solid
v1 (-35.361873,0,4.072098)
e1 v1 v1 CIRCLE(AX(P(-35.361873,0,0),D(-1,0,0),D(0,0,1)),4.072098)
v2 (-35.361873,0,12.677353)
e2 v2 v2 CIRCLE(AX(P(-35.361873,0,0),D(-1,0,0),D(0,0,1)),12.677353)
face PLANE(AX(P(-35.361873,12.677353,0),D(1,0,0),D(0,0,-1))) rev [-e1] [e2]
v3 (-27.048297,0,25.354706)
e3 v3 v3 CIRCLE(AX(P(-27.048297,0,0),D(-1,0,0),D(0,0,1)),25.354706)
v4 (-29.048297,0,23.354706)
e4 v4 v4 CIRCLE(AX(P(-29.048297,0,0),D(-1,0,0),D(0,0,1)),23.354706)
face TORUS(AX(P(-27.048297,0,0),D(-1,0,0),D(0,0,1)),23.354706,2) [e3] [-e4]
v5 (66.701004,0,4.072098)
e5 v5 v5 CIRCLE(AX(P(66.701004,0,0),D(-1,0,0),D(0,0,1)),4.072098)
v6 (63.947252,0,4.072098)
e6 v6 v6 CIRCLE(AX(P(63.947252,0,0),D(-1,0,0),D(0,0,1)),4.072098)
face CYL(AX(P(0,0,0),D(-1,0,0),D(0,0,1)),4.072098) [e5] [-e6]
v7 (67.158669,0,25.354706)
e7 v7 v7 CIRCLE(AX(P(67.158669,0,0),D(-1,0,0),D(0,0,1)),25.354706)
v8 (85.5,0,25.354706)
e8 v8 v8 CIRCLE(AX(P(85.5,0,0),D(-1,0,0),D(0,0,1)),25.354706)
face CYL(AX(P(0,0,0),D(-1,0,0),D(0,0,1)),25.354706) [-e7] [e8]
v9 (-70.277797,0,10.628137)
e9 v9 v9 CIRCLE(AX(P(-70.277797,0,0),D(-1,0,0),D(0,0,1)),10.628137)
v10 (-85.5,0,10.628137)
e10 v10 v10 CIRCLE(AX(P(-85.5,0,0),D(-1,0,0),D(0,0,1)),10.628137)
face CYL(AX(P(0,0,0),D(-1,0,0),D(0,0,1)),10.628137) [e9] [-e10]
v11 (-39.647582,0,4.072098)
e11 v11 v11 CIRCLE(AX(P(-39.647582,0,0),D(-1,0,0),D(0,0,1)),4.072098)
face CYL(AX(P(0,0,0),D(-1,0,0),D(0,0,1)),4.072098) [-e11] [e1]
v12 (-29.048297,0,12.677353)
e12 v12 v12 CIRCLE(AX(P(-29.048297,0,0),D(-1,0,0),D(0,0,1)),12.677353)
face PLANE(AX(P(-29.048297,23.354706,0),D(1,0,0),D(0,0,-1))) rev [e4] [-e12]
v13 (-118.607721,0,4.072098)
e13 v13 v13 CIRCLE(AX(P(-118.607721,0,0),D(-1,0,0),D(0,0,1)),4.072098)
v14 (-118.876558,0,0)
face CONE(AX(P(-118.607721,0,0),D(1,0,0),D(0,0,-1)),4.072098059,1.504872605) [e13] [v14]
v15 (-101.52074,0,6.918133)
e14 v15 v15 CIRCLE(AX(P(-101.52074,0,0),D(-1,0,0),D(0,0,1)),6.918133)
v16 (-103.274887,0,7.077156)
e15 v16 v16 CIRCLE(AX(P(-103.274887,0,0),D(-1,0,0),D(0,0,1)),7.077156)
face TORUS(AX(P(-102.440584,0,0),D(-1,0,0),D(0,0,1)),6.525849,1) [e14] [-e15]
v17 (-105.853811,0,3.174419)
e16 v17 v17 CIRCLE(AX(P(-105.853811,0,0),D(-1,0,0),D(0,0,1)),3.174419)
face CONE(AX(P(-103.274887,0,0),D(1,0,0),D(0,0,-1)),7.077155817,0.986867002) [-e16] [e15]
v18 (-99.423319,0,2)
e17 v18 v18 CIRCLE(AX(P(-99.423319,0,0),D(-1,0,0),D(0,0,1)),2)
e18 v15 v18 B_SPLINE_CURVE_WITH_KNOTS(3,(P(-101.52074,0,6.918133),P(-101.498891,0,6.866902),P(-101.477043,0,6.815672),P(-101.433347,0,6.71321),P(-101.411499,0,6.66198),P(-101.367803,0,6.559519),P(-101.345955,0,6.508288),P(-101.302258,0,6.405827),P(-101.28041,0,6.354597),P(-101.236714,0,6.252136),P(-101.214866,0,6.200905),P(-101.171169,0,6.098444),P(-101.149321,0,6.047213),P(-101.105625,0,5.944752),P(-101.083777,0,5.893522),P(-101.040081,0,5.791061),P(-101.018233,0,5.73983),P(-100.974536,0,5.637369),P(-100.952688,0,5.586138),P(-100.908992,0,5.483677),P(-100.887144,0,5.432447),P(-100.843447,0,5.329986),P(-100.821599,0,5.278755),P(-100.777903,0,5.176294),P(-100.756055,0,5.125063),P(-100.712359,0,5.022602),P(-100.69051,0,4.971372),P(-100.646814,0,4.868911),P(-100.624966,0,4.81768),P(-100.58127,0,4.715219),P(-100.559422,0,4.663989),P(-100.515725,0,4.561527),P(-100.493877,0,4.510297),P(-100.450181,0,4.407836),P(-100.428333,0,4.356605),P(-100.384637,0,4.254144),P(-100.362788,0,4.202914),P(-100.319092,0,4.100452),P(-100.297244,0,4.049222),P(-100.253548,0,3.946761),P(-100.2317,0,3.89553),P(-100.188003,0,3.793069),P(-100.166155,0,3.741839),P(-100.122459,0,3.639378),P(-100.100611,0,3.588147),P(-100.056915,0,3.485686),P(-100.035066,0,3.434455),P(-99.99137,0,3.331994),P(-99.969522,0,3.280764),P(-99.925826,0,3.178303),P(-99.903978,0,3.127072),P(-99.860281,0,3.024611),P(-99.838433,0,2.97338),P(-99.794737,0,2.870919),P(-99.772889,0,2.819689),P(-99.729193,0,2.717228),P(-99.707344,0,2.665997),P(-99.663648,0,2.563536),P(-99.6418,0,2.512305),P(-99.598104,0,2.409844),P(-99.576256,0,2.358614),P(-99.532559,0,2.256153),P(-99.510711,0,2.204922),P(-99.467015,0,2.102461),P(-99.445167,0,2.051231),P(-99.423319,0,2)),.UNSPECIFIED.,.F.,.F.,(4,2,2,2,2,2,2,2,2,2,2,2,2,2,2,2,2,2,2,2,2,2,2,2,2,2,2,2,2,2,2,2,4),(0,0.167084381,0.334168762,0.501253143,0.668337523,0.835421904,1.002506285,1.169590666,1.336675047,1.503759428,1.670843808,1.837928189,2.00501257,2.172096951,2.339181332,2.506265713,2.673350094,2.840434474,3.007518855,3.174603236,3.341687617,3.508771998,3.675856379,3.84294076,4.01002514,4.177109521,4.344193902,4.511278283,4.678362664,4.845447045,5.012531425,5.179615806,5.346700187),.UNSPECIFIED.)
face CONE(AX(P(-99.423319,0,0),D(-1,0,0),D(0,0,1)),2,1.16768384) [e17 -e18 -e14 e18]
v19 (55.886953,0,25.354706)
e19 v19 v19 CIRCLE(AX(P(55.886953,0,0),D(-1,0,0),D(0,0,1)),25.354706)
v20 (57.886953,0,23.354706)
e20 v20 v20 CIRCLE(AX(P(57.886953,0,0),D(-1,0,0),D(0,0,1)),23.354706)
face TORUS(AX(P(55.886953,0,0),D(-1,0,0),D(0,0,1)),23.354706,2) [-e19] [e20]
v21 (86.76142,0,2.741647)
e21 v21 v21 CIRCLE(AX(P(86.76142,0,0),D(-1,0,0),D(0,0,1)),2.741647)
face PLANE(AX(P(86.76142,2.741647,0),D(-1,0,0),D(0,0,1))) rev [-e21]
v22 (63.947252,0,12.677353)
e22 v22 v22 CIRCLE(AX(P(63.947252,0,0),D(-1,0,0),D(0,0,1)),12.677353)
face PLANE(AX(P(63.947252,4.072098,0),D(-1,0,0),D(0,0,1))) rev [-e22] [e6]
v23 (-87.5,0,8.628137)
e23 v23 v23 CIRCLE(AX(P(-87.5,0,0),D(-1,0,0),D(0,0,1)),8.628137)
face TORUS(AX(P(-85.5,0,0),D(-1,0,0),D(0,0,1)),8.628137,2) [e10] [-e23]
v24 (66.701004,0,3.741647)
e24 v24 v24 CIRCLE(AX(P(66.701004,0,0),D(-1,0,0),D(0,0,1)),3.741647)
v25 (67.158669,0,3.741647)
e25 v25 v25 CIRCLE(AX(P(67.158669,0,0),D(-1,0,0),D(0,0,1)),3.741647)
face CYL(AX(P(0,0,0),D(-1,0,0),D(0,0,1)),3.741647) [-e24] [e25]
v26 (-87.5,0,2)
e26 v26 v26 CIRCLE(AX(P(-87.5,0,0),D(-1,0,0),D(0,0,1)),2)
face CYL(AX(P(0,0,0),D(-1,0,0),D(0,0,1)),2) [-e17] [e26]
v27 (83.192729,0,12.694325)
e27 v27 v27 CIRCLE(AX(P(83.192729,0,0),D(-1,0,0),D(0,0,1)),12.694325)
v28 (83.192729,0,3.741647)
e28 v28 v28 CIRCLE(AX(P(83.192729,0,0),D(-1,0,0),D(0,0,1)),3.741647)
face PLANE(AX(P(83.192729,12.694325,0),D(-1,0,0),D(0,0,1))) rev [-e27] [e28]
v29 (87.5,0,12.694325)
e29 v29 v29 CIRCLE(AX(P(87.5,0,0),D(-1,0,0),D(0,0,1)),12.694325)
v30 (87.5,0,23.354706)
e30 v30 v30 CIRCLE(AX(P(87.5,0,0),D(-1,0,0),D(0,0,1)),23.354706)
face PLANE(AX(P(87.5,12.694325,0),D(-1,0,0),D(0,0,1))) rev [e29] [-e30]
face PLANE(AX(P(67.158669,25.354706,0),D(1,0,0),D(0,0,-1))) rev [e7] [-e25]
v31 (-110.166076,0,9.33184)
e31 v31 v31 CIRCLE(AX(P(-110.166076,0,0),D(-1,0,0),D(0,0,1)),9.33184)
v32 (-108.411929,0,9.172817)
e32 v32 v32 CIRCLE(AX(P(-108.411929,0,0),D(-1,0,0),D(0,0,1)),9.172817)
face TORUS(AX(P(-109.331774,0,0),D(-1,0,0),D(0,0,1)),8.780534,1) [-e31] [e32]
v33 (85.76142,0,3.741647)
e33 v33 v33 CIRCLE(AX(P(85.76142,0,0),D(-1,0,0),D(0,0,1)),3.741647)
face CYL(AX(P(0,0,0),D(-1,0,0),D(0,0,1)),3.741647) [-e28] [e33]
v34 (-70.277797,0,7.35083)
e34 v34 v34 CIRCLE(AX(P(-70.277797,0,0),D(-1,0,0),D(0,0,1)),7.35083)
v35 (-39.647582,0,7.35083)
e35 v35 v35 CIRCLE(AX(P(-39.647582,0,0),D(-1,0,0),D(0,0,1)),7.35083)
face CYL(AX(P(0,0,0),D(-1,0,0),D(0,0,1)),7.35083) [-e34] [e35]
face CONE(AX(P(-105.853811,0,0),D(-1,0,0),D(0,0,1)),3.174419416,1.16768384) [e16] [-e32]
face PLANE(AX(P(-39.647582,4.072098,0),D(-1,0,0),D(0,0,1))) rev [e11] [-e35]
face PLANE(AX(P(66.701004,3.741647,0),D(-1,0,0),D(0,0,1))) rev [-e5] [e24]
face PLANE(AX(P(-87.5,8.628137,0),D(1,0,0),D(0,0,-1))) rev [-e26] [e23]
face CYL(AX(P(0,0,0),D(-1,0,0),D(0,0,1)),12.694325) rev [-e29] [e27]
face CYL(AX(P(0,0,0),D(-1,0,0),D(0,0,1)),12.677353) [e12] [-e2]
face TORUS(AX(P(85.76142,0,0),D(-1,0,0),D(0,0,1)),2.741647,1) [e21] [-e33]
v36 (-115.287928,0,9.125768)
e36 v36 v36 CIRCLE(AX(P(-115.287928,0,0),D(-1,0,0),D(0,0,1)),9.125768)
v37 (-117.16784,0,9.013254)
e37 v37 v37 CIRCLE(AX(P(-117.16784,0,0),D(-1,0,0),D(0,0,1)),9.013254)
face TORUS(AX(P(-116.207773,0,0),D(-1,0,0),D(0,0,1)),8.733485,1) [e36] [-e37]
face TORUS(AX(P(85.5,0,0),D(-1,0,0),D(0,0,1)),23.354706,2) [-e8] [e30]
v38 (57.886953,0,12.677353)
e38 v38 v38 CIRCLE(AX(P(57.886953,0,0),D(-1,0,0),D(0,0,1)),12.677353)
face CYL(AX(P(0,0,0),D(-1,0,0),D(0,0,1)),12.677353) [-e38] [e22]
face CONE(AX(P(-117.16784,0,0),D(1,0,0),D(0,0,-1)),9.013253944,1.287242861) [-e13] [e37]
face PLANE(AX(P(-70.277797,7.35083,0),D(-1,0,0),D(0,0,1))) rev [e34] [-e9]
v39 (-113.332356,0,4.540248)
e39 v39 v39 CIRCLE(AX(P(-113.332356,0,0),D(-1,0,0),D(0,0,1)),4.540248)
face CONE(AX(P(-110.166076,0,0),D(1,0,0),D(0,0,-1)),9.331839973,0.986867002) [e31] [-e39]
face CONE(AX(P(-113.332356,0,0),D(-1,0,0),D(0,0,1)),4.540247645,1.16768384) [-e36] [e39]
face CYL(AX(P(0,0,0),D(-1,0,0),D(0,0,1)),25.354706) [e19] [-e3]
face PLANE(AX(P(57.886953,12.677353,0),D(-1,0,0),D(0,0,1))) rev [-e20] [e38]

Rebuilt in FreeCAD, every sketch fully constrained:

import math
import FreeCAD as App
import Part
import Sketcher
Q = App.Units.Quantity

doc = App.newDocument("Part")
body = doc.addObject("PartDesign::Body", "Body")

# Sketch on XY plane
sketch1 = doc.addObject("Sketcher::SketchObject", "Sketch")
body.addObject(sketch1)
sketch1.AttachmentSupport = (doc.XY_Plane, [""])
sketch1.MapMode = "FlatFace"
sketch1.addGeometry([
    Part.LineSegment(App.Vector(86.76, 0, 0), App.Vector(86.76, 2.74, 0)),  # 0
    Part.ArcOfCircle(Part.Circle(App.Vector(85.76, 2.74, 0), App.Vector(0, 0, 1), 1), math.radians(0), math.radians(90)),  # 1
    Part.LineSegment(App.Vector(85.76, 3.74, 0), App.Vector(83.19, 3.74, 0)),  # 2
    Part.LineSegment(App.Vector(83.19, 3.74, 0), App.Vector(83.19, 12.69, 0)),  # 3
    Part.LineSegment(App.Vector(83.19, 12.69, 0), App.Vector(87.5, 12.69, 0)),  # 4
    Part.LineSegment(App.Vector(87.5, 12.69, 0), App.Vector(87.5, 23.35, 0)),  # 5
    Part.ArcOfCircle(Part.Circle(App.Vector(85.5, 23.35, 0), App.Vector(0, 0, 1), 2), math.radians(0), math.radians(90)),  # 6
    Part.LineSegment(App.Vector(85.5, 25.35, 0), App.Vector(67.16, 25.35, 0)),  # 7
    Part.LineSegment(App.Vector(67.16, 25.35, 0), App.Vector(67.16, 3.74, 0)),  # 8
    Part.LineSegment(App.Vector(67.16, 3.74, 0), App.Vector(66.7, 3.74, 0)),  # 9
    Part.LineSegment(App.Vector(66.7, 3.74, 0), App.Vector(66.7, 4.07, 0)),  # 10
    Part.LineSegment(App.Vector(66.7, 4.07, 0), App.Vector(63.95, 4.07, 0)),  # 11
    Part.LineSegment(App.Vector(63.95, 4.07, 0), App.Vector(63.95, 12.68, 0)),  # 12
    Part.LineSegment(App.Vector(63.95, 12.68, 0), App.Vector(57.89, 12.68, 0)),  # 13
    Part.LineSegment(App.Vector(57.89, 12.68, 0), App.Vector(57.89, 23.35, 0)),  # 14
    Part.ArcOfCircle(Part.Circle(App.Vector(55.89, 23.35, 0), App.Vector(0, 0, 1), 2), math.radians(0), math.radians(90)),  # 15
    Part.LineSegment(App.Vector(55.89, 25.35, 0), App.Vector(-27.05, 25.35, 0)),  # 16
    Part.ArcOfCircle(Part.Circle(App.Vector(-27.05, 23.35, 0), App.Vector(0, 0, 1), 2), math.radians(90), math.radians(180)),  # 17
    Part.LineSegment(App.Vector(-29.05, 23.35, 0), App.Vector(-29.05, 12.68, 0)),  # 18
    Part.LineSegment(App.Vector(-29.05, 12.68, 0), App.Vector(-35.36, 12.68, 0)),  # 19
    Part.LineSegment(App.Vector(-35.36, 12.68, 0), App.Vector(-35.36, 4.07, 0)),  # 20
    Part.LineSegment(App.Vector(-35.36, 4.07, 0), App.Vector(-39.65, 4.07, 0)),  # 21
    Part.LineSegment(App.Vector(-39.65, 4.07, 0), App.Vector(-39.65, 7.35, 0)),  # 22
    Part.LineSegment(App.Vector(-39.65, 7.35, 0), App.Vector(-70.28, 7.35, 0)),  # 23
    Part.LineSegment(App.Vector(-70.28, 7.35, 0), App.Vector(-70.28, 10.63, 0)),  # 24
    Part.LineSegment(App.Vector(-70.28, 10.63, 0), App.Vector(-85.5, 10.63, 0)),  # 25
    Part.ArcOfCircle(Part.Circle(App.Vector(-85.5, 8.63, 0), App.Vector(0, 0, 1), 2), math.radians(90), math.radians(180)),  # 26
    Part.LineSegment(App.Vector(-87.5, 8.63, 0), App.Vector(-87.5, 2, 0)),  # 27
    Part.LineSegment(App.Vector(-87.5, 2, 0), App.Vector(-99.42, 2, 0)),  # 28
    Part.LineSegment(App.Vector(-99.42, 2, 0), App.Vector(-101.52, 6.92, 0)),  # 29
    Part.ArcOfCircle(Part.Circle(App.Vector(-102.44, 6.53, 0), App.Vector(0, 0, 1), 1), math.radians(23), math.radians(147)),  # 30
    Part.LineSegment(App.Vector(-103.27, 7.08, 0), App.Vector(-105.85, 3.17, 0)),  # 31
    Part.LineSegment(App.Vector(-105.85, 3.17, 0), App.Vector(-108.41, 9.17, 0)),  # 32
    Part.ArcOfCircle(Part.Circle(App.Vector(-109.33, 8.78, 0), App.Vector(0, 0, 1), 1), math.radians(23), math.radians(147)),  # 33
    Part.LineSegment(App.Vector(-110.17, 9.33, 0), App.Vector(-113.33, 4.54, 0)),  # 34
    Part.LineSegment(App.Vector(-113.33, 4.54, 0), App.Vector(-115.29, 9.13, 0)),  # 35
    Part.ArcOfCircle(Part.Circle(App.Vector(-116.21, 8.73, 0), App.Vector(0, 0, 1), 1), math.radians(23), math.radians(164)),  # 36
    Part.LineSegment(App.Vector(-117.17, 9.01, 0), App.Vector(-118.61, 4.07, 0)),  # 37
    Part.LineSegment(App.Vector(-118.61, 4.07, 0), App.Vector(-118.88, 0, 0)),  # 38
    Part.LineSegment(App.Vector(-118.88, 0, 0), App.Vector(86.76, 0, 0)),  # 39
], False)
sketch1.addConstraint([
    Sketcher.Constraint("Tangent", 0, 2, 1, 1),
    Sketcher.Constraint("Tangent", 1, 2, 2, 1),
    Sketcher.Constraint("Coincident", 2, 2, 3, 1),
    Sketcher.Constraint("Coincident", 3, 2, 4, 1),
    Sketcher.Constraint("Coincident", 4, 2, 5, 1),
    Sketcher.Constraint("Tangent", 5, 2, 6, 1),
    Sketcher.Constraint("Tangent", 6, 2, 7, 1),
    Sketcher.Constraint("Coincident", 7, 2, 8, 1),
    Sketcher.Constraint("Coincident", 8, 2, 9, 1),
    Sketcher.Constraint("Coincident", 9, 2, 10, 1),
    Sketcher.Constraint("Coincident", 10, 2, 11, 1),
    Sketcher.Constraint("Coincident", 11, 2, 12, 1),
    Sketcher.Constraint("Coincident", 12, 2, 13, 1),
    Sketcher.Constraint("Coincident", 13, 2, 14, 1),
    Sketcher.Constraint("Tangent", 14, 2, 15, 1),
    Sketcher.Constraint("Tangent", 15, 2, 16, 1),
    Sketcher.Constraint("Tangent", 16, 2, 17, 1),
    Sketcher.Constraint("Tangent", 17, 2, 18, 1),
    Sketcher.Constraint("Coincident", 18, 2, 19, 1),
    Sketcher.Constraint("Coincident", 19, 2, 20, 1),
    Sketcher.Constraint("Coincident", 20, 2, 21, 1),
    Sketcher.Constraint("Coincident", 21, 2, 22, 1),
    Sketcher.Constraint("Coincident", 22, 2, 23, 1),
    Sketcher.Constraint("Coincident", 23, 2, 24, 1),
    Sketcher.Constraint("Coincident", 24, 2, 25, 1),
    Sketcher.Constraint("Tangent", 25, 2, 26, 1),
    Sketcher.Constraint("Tangent", 26, 2, 27, 1),
    Sketcher.Constraint("Coincident", 27, 2, 28, 1),
    Sketcher.Constraint("Coincident", 28, 2, 29, 1),
    Sketcher.Constraint("Tangent", 29, 2, 30, 1),
    Sketcher.Constraint("Tangent", 30, 2, 31, 1),
    Sketcher.Constraint("Coincident", 31, 2, 32, 1),
    Sketcher.Constraint("Tangent", 32, 2, 33, 1),
    Sketcher.Constraint("Tangent", 33, 2, 34, 1),
    Sketcher.Constraint("Coincident", 34, 2, 35, 1),
    Sketcher.Constraint("Tangent", 35, 2, 36, 1),
    Sketcher.Constraint("Tangent", 36, 2, 37, 1),
    Sketcher.Constraint("Coincident", 37, 2, 38, 1),
    Sketcher.Constraint("Coincident", 38, 2, 39, 1),
    Sketcher.Constraint("Coincident", 39, 2, 0, 1),
    Sketcher.Constraint("Vertical", 0),
    Sketcher.Constraint("Horizontal", 2),
    Sketcher.Constraint("Vertical", 3),
    Sketcher.Constraint("Horizontal", 4),
    Sketcher.Constraint("Vertical", 5),
    Sketcher.Constraint("Horizontal", 7),
    Sketcher.Constraint("Vertical", 8),
    Sketcher.Constraint("Horizontal", 9),
    Sketcher.Constraint("Vertical", 10),
    Sketcher.Constraint("Horizontal", 11),
    Sketcher.Constraint("Vertical", 12),
    Sketcher.Constraint("Horizontal", 13),
    Sketcher.Constraint("Vertical", 14),
    Sketcher.Constraint("Horizontal", 16),
    Sketcher.Constraint("Vertical", 18),
    Sketcher.Constraint("Horizontal", 19),
    Sketcher.Constraint("Vertical", 20),
    Sketcher.Constraint("Horizontal", 21),
    Sketcher.Constraint("Vertical", 22),
    Sketcher.Constraint("Horizontal", 23),
    Sketcher.Constraint("Vertical", 24),
    Sketcher.Constraint("Horizontal", 25),
    Sketcher.Constraint("Vertical", 27),
    Sketcher.Constraint("Horizontal", 28),
    Sketcher.Constraint("Horizontal", 39),
    Sketcher.Constraint("Equal", 6, 15),
    Sketcher.Constraint("Equal", 15, 17),
    Sketcher.Constraint("Equal", 17, 26),
    Sketcher.Constraint("Equal", 1, 30),
    Sketcher.Constraint("Equal", 30, 33),
    Sketcher.Constraint("Equal", 33, 36),
    Sketcher.Constraint("PointOnObject", 38, 2, -1),
    Sketcher.Constraint("Parallel", 29, 32),
    Sketcher.Constraint("Parallel", 31, 34),
    Sketcher.Constraint("Parallel", 32, 35),
    Sketcher.Constraint("Horizontal", 6, 3, 15, 3),
    Sketcher.Constraint("Horizontal", 2, 2, 8, 2),
    Sketcher.Constraint("Horizontal", 13, 2, 18, 2),
    Sketcher.Constraint("Horizontal", 11, 2, 20, 2),
    Sketcher.Constraint("Horizontal", 21, 2, 37, 2),
    Sketcher.Constraint("Radius", 1, Q("1 mm")),
    Sketcher.Constraint("Radius", 6, Q("2 mm")),
    Sketcher.Constraint("DistanceY", -1, 1, 27, 2, Q("2 mm")),
    Sketcher.Constraint("DistanceX", 26, 3, 6, 3, Q("171 mm")),
    Sketcher.Constraint("DistanceX", -1, 1, 6, 3, Q("85.5 mm")),
    Sketcher.Constraint("DistanceX", 13, 2, 13, 1, Q("6.060298 mm")),
    Sketcher.Constraint("DistanceX", 36, 3, 33, 3, Q("6.875999 mm")),
    Sketcher.Constraint("Distance", 29, Q("5.3467 mm")),
    Sketcher.Constraint("Distance", 32, Q("6.5211 mm")),
    Sketcher.Constraint("DistanceX", 2, 2, 2, 1, Q("2.568692 mm")),
    Sketcher.Constraint("DistanceX", 4, 1, 4, 2, Q("4.307271 mm")),
    Sketcher.Constraint("DistanceX", 7, 2, 7, 1, Q("18.341331 mm")),
    Sketcher.Constraint("DistanceX", 16, 2, 16, 1, Q("82.93525 mm")),
    Sketcher.Constraint("DistanceX", 21, 2, 21, 1, Q("4.285709 mm")),
    Sketcher.Constraint("DistanceX", 28, 2, 28, 1, Q("11.923319 mm")),
    Sketcher.Constraint("DistanceX", 39, 1, 39, 2, Q("205.637978 mm")),
    Sketcher.Constraint("DistanceY", 5, 1, 5, 2, Q("10.660382 mm")),
    Sketcher.Constraint("DistanceY", 8, 2, 8, 1, Q("21.61306 mm")),
    Sketcher.Constraint("DistanceY", 10, 1, 10, 2, Q("0.330451 mm")),
    Sketcher.Constraint("DistanceY", -1, 1, 10, 2, Q("4.072098 mm")),
    Sketcher.Constraint("DistanceY", 29, 2, 33, 3, Q("1.862401 mm")),
    Sketcher.Constraint("Distance", 31, Q("4.677841 mm")),
    Sketcher.Constraint("Distance", 34, Q("5.743229 mm")),
    Sketcher.Constraint("DistanceX", 9, 2, 9, 1, Q("0.457665 mm")),
    Sketcher.Constraint("DistanceX", 11, 2, 11, 1, Q("2.753753 mm")),
    Sketcher.Constraint("DistanceX", 19, 2, 19, 1, Q("6.313576 mm")),
    Sketcher.Constraint("DistanceX", 23, 2, 23, 1, Q("30.630215 mm")),
    Sketcher.Constraint("DistanceY", 12, 1, 12, 2, Q("8.605255 mm")),
    Sketcher.Constraint("DistanceY", 22, 1, 22, 2, Q("3.278732 mm")),
    Sketcher.Constraint("DistanceY", 24, 1, 24, 2, Q("3.277307 mm")),
    Sketcher.Constraint("DistanceY", -1, 1, 30, 3, Q("6.525849 mm")),
    Sketcher.Constraint("DistanceX", 36, 2, -1, 1, Q("117.16784 mm")),
])
revolution = doc.addObject("PartDesign::Revolution", "Revolution")
body.addObject(revolution)
revolution.Profile = sketch1
revolution.ReferenceAxis = (sketch1, ["H_Axis"])
revolution.Angle = 360

doc.recompute()
